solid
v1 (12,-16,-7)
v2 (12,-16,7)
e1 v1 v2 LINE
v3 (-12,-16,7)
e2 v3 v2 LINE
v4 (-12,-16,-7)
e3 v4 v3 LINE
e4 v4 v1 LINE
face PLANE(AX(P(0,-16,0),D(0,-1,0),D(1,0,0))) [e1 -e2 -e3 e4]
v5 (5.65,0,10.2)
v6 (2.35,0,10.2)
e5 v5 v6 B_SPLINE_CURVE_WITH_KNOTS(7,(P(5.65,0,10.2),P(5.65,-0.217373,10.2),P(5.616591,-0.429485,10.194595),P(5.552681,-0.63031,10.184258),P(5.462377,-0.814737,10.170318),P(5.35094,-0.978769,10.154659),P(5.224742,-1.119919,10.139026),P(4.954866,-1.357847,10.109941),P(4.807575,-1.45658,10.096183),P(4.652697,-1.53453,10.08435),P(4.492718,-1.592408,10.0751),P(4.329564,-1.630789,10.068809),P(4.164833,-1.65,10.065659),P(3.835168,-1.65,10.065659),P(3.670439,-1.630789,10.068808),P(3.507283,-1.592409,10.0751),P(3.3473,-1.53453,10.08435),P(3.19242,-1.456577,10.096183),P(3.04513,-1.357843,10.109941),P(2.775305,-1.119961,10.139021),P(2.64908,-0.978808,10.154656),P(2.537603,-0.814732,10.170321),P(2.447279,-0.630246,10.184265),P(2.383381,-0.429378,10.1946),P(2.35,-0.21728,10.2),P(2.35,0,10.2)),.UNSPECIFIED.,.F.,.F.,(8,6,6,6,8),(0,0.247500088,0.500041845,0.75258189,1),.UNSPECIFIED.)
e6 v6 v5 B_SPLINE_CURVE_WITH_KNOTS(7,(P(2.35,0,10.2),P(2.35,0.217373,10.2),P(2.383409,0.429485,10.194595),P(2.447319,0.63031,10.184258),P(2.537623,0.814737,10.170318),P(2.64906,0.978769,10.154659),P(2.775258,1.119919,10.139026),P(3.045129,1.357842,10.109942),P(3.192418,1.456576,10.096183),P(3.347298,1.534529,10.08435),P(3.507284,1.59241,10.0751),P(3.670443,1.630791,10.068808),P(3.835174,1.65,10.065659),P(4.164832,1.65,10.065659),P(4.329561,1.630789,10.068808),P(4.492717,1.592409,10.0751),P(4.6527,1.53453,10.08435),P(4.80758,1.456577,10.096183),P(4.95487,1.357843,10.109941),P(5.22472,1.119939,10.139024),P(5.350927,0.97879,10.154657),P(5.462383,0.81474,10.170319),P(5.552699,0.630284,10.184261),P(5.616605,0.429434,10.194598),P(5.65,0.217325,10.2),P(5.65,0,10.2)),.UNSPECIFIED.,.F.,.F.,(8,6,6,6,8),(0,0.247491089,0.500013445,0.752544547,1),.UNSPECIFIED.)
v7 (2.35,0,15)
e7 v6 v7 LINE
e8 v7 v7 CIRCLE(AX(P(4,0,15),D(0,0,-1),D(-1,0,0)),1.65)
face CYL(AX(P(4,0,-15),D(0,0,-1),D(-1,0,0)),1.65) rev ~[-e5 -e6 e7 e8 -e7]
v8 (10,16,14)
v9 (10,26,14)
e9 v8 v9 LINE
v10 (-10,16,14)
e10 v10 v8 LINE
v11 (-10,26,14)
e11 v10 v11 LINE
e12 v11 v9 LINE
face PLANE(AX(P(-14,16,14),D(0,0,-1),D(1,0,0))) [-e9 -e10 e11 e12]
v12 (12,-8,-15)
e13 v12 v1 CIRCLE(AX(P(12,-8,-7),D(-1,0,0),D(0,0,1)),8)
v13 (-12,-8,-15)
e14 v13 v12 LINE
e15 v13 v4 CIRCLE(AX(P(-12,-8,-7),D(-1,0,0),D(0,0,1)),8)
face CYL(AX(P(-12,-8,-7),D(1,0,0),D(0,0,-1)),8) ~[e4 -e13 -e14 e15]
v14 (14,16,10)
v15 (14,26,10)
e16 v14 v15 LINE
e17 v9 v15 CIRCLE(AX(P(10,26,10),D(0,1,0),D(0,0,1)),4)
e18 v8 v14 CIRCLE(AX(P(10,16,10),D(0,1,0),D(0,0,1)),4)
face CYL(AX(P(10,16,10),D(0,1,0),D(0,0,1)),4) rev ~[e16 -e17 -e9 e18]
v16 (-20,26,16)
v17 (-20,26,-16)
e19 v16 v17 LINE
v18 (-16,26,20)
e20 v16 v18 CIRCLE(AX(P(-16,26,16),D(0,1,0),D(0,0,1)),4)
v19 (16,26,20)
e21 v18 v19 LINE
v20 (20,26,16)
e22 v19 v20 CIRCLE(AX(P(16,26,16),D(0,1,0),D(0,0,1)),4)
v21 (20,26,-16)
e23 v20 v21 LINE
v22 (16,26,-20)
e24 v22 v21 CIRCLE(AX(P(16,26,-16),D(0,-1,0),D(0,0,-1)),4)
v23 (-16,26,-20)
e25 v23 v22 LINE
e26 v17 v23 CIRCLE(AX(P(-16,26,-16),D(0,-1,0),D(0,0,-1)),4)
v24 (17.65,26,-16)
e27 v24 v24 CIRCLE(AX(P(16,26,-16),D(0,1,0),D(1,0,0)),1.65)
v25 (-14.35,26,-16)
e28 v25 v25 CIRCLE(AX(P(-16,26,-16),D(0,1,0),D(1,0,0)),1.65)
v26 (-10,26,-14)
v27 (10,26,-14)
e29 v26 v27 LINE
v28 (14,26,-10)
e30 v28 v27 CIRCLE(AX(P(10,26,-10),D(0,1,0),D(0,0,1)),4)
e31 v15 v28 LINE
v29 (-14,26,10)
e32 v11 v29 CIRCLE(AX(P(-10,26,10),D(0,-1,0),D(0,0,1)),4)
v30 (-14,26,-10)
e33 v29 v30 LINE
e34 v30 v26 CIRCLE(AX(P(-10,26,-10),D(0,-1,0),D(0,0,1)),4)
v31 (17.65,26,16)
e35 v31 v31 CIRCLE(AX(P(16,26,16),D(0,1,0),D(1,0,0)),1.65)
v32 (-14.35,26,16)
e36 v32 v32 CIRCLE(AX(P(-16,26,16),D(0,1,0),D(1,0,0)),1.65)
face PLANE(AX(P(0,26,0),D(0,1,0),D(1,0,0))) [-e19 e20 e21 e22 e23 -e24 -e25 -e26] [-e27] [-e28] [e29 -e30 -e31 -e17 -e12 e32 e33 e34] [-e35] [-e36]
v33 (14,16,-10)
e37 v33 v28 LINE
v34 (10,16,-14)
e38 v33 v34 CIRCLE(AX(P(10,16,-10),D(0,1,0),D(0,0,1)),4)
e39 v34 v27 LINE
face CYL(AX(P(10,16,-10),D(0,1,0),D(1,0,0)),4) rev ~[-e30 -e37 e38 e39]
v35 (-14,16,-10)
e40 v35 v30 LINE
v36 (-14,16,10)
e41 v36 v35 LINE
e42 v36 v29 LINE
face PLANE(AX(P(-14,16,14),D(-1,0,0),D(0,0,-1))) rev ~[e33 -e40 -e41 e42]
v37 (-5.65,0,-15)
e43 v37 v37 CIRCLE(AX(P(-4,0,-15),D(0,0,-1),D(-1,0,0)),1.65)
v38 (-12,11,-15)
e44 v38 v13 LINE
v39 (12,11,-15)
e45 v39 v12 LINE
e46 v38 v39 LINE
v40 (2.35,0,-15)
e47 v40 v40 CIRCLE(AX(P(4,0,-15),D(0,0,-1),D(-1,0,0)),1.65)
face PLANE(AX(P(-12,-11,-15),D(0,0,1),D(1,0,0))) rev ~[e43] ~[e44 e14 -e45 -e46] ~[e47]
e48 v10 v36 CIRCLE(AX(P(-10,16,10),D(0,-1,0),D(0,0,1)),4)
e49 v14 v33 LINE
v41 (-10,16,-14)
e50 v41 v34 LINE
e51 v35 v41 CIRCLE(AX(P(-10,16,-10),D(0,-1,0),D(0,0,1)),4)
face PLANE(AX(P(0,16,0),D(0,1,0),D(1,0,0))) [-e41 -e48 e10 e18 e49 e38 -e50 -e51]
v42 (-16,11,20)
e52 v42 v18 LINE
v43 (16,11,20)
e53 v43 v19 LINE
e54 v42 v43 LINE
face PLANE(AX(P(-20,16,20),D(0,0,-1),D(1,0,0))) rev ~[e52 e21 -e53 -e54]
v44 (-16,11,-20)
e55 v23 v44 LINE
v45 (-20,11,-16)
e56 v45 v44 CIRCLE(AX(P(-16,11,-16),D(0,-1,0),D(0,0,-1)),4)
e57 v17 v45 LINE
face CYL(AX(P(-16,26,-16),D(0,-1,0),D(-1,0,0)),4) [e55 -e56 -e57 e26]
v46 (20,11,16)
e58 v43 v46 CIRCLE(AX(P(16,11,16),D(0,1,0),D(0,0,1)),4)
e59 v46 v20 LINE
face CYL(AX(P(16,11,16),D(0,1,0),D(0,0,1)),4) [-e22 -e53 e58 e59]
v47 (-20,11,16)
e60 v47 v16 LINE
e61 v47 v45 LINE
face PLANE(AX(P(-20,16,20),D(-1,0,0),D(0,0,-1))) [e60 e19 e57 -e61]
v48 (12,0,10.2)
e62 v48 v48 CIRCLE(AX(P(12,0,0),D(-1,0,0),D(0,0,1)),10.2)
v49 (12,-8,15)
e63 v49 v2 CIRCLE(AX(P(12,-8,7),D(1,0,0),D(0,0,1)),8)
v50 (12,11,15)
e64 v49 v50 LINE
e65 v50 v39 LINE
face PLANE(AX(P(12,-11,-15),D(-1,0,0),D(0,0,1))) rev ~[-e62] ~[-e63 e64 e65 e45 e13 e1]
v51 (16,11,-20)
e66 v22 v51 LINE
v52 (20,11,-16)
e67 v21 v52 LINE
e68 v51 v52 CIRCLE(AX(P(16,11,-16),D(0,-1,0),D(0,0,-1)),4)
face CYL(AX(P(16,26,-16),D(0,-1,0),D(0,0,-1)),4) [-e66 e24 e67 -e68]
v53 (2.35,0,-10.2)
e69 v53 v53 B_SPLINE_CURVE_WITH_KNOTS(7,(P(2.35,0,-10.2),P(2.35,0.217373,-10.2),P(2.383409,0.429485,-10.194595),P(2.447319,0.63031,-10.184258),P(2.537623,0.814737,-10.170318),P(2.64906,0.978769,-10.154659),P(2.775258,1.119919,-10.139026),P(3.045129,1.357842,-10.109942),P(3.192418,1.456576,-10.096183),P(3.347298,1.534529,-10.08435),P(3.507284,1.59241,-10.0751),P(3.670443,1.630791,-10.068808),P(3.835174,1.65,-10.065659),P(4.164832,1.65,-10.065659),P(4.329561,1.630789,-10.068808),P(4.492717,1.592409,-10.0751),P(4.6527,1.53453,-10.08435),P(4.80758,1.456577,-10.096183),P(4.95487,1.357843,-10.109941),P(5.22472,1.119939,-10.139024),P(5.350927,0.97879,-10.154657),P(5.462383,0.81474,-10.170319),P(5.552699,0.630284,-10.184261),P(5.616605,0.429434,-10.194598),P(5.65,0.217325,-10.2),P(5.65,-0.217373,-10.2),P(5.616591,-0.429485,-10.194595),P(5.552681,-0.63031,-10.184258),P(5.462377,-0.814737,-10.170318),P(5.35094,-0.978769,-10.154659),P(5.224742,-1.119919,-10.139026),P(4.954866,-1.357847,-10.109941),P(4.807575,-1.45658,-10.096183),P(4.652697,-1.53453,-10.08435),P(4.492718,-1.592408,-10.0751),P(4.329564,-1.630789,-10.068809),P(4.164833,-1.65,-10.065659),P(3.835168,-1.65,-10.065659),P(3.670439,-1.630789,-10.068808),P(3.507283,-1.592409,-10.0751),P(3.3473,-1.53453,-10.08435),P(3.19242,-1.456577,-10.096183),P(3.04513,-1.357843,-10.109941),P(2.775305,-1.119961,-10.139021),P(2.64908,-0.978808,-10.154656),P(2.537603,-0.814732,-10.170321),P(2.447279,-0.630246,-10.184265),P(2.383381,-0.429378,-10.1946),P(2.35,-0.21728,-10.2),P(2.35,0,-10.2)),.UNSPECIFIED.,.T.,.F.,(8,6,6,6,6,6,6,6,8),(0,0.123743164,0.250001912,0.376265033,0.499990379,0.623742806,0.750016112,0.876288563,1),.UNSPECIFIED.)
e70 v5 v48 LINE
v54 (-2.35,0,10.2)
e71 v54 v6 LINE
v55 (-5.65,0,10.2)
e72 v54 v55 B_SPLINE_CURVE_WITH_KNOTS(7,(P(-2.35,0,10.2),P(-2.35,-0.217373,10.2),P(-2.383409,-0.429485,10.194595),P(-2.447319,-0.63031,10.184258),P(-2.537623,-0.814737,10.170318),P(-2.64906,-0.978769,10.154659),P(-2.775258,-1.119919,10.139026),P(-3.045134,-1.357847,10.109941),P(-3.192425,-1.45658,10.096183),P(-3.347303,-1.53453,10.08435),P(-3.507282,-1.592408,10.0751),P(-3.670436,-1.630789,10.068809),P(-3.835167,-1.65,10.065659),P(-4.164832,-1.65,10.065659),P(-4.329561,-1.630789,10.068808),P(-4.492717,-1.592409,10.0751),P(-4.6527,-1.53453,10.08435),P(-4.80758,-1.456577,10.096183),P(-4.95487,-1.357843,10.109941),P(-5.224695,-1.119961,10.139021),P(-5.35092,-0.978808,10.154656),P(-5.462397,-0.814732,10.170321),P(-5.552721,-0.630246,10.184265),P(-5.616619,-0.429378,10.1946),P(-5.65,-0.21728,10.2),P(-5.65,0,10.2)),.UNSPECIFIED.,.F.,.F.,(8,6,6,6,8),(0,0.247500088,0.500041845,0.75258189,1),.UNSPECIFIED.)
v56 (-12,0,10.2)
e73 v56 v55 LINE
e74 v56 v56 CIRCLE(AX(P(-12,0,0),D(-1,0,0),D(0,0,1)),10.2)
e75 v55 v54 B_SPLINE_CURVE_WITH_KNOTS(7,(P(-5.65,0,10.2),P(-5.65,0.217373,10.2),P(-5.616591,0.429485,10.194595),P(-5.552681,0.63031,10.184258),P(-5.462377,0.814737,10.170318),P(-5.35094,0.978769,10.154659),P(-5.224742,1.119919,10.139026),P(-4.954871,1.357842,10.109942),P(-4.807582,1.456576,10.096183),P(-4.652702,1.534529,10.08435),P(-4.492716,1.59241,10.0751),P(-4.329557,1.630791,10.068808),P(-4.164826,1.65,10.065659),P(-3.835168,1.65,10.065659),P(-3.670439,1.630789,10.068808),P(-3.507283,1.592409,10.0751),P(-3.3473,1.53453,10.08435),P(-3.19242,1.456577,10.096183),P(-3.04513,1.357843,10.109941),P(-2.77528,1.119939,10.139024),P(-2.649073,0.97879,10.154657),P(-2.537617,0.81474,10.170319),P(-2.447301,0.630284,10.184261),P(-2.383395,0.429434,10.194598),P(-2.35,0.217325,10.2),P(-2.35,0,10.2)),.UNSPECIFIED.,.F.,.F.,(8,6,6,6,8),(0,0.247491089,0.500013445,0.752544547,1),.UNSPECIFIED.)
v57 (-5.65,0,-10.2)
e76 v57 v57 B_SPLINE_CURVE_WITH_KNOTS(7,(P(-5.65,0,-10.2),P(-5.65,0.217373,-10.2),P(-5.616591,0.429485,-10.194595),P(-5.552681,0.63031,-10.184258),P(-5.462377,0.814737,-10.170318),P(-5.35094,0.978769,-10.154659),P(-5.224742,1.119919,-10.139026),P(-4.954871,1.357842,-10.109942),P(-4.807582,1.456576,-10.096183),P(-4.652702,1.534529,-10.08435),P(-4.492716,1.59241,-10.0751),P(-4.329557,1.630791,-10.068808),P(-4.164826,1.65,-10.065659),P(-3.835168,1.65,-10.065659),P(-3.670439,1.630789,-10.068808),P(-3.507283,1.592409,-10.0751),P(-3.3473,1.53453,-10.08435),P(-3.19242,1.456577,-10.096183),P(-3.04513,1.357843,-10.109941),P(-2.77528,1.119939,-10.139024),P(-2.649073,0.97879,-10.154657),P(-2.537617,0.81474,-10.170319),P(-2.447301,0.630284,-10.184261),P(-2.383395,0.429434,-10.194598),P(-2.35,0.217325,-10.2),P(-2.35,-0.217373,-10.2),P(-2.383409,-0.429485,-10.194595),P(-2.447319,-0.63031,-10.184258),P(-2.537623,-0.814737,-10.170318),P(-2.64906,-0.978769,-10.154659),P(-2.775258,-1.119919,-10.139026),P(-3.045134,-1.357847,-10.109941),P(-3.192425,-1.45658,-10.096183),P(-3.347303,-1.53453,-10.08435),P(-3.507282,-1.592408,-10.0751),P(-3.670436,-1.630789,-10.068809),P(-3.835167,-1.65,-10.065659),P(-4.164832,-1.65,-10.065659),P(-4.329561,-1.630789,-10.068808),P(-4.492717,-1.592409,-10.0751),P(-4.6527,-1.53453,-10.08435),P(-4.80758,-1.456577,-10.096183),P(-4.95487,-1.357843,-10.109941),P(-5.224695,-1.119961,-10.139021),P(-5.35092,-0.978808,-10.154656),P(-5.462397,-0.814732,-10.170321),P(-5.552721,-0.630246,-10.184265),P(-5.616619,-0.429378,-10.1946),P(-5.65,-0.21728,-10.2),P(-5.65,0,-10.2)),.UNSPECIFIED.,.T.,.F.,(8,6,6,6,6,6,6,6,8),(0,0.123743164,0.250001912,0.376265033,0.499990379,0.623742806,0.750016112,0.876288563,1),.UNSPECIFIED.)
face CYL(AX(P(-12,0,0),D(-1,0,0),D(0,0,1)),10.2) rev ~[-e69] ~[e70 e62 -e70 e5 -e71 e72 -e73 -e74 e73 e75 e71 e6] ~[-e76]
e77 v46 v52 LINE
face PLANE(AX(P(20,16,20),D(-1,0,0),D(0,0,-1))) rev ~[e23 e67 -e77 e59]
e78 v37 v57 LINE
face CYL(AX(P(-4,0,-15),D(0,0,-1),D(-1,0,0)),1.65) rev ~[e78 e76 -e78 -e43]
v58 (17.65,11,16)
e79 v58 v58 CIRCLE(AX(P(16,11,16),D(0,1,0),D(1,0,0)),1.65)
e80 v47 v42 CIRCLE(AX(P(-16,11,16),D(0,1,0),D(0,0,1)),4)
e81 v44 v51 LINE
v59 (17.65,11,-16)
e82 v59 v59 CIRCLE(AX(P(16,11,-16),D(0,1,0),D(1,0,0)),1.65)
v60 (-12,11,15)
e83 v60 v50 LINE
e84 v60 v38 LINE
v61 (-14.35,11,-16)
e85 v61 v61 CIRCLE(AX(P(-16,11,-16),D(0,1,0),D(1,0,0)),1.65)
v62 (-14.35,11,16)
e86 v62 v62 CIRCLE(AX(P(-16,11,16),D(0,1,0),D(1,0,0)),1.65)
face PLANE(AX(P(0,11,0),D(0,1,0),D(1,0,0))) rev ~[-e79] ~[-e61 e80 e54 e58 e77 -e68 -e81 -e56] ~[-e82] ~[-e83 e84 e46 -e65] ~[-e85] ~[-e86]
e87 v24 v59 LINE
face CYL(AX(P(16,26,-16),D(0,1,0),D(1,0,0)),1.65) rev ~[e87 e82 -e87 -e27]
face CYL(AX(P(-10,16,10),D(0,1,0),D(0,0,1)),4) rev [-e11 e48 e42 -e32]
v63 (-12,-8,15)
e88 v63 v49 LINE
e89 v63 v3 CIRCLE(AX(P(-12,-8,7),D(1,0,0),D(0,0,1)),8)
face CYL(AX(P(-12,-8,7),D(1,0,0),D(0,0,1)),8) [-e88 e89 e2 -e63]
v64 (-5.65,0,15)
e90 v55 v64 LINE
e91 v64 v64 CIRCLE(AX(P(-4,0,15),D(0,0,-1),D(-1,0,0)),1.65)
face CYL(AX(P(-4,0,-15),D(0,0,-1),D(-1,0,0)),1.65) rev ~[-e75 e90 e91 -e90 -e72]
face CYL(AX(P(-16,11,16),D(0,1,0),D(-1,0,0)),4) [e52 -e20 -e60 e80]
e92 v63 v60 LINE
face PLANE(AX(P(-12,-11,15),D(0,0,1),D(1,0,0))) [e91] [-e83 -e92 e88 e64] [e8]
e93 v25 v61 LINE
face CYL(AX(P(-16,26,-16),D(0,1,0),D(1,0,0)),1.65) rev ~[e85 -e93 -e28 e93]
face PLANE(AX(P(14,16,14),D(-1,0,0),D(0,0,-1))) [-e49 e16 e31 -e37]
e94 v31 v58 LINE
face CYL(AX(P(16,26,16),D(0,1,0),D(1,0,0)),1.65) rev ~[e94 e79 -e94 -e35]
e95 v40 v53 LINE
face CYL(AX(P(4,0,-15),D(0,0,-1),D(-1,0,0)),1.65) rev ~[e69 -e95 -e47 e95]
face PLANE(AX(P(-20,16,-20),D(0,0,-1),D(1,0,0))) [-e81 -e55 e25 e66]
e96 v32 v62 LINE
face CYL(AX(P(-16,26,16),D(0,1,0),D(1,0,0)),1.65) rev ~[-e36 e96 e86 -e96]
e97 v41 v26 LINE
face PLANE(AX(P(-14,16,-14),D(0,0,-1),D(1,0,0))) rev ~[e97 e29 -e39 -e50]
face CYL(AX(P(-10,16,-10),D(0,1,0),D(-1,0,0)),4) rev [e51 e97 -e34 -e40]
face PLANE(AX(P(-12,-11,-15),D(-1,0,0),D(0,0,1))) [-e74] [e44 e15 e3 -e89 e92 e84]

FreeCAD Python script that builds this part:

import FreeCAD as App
import Part
import Sketcher

V = App.Vector
Q = App.Units.Quantity


def edges_at(feature, points):
    """Names of the edges that pass closest to the given points."""
    edges = feature.Shape.Edges
    near = lambda p: min(range(len(edges)), key=lambda i: edges[i].distToShape(Part.Vertex(*p))[0])
    return sorted({f"Edge{near(p) + 1}" for p in points})

doc = App.newDocument("Part")
body = doc.addObject("PartDesign::Body", "Body")

# Sketch on XZ plane
sketch1 = body.newObject("Sketcher::SketchObject", "Sketch")
sketch1.AttachmentSupport = (doc.getObject("XZ_Plane"), [""])
sketch1.MapMode = "FlatFace"
sketch1.addGeometry([
    Part.LineSegment(V(-12, -15, 0), V(-12, 15, 0)),
    Part.LineSegment(V(-12, 15, 0), V(12, 15, 0)),
    Part.LineSegment(V(12, 15, 0), V(12, -15, 0)),
    Part.LineSegment(V(12, -15, 0), V(-12, -15, 0)),
], False)
sketch1.addConstraint([
    Sketcher.Constraint("Coincident", 0, 2, 1, 1),
    Sketcher.Constraint("Coincident", 1, 2, 2, 1),
    Sketcher.Constraint("Coincident", 2, 2, 3, 1),
    Sketcher.Constraint("Coincident", 3, 2, 0, 1),
    Sketcher.Constraint("Vertical", 0),
    Sketcher.Constraint("Horizontal", 1),
    Sketcher.Constraint("Vertical", 2),
    Sketcher.Constraint("Horizontal", 3),
    Sketcher.Constraint("Symmetric", 0, 2, 2, 2, -1, 1),
    Sketcher.Constraint("DistanceX", 1, 1, 1, 2, Q("24 mm")),
    Sketcher.Constraint("DistanceY", 0, 1, 0, 2, Q("30 mm")),
])
pad1 = body.newObject("PartDesign::Pad", "Pad")
pad1.Profile = sketch1
pad1.Length = 22
pad1.Midplane = True

# Sketch on XY plane
sketch2 = body.newObject("Sketcher::SketchObject", "Sketch001")
sketch2.AttachmentSupport = (doc.getObject("XY_Plane"), [""])
sketch2.MapMode = "FlatFace"
sketch2.AttachmentOffset = App.Placement(V(0, 0, -15), App.Rotation())
sketch2.addGeometry([
    Part.Circle(V(-4, 0, 0), V(0, 0, 1), 1.6),
    Part.Circle(V(4, 0, 0), V(0, 0, 1), 1.6),
], False)
sketch2.addConstraint([
    Sketcher.Constraint("Equal", 0, 1),
    Sketcher.Constraint("Symmetric", 0, 3, 1, 3, -1, 1),
    Sketcher.Constraint("PointOnObject", 0, 3, -1),
    Sketcher.Constraint("Diameter", 0, Q("3.3 mm")),
    Sketcher.Constraint("DistanceX", 0, 3, -1, 1, Q("4 mm")),
])
pocket1 = body.newObject("PartDesign::Pocket", "Pocket")
pocket1.Profile = sketch2
pocket1.Length = 30
pocket1.Reversed = True

# Sketch on YZ plane
sketch3 = body.newObject("Sketcher::SketchObject", "Sketch002")
sketch3.AttachmentSupport = (doc.getObject("YZ_Plane"), [""])
sketch3.MapMode = "FlatFace"
sketch3.AttachmentOffset = App.Placement(V(0, 0, -12), App.Rotation())
sketch3.addGeometry(Part.Circle(V(0, 0, 0), V(0, 0, 1), 10), False)
sketch3.addConstraint([
    Sketcher.Constraint("Coincident", 0, 3, -1, 1),
    Sketcher.Constraint("Diameter", 0, Q("20.4 mm")),
])
pocket2 = body.newObject("PartDesign::Pocket", "Pocket001")
pocket2.Profile = sketch3
pocket2.Length = 24
pocket2.Reversed = True

# Sketch on XZ plane
sketch4 = body.newObject("Sketcher::SketchObject", "Sketch003")
sketch4.AttachmentSupport = (doc.getObject("XZ_Plane"), [""])
sketch4.MapMode = "FlatFace"
sketch4.AttachmentOffset = App.Placement(V(0, 0, -16), App.Rotation())
sketch4.addGeometry([
    Part.LineSegment(V(-20, -20, 0), V(-20, 20, 0)),
    Part.LineSegment(V(-20, 20, 0), V(20, 20, 0)),
    Part.LineSegment(V(20, 20, 0), V(20, -20, 0)),
    Part.LineSegment(V(20, -20, 0), V(-20, -20, 0)),
], False)
sketch4.addConstraint([
    Sketcher.Constraint("Coincident", 0, 2, 1, 1),
    Sketcher.Constraint("Coincident", 1, 2, 2, 1),
    Sketcher.Constraint("Coincident", 2, 2, 3, 1),
    Sketcher.Constraint("Coincident", 3, 2, 0, 1),
    Sketcher.Constraint("Vertical", 0),
    Sketcher.Constraint("Horizontal", 1),
    Sketcher.Constraint("Vertical", 2),
    Sketcher.Constraint("Horizontal", 3),
    Sketcher.Constraint("Symmetric", 0, 2, 2, 2, -1, 1),
    Sketcher.Constraint("Equal", 3, 0),
    Sketcher.Constraint("DistanceX", 1, 1, 1, 2, Q("40 mm")),
])
pad2 = body.newObject("PartDesign::Pad", "Pad001")
pad2.Profile = sketch4
pad2.Length = 5

# Sketch on XZ plane
sketch5 = body.newObject("Sketcher::SketchObject", "Sketch004")
sketch5.AttachmentSupport = (doc.getObject("XZ_Plane"), [""])
sketch5.MapMode = "FlatFace"
sketch5.AttachmentOffset = App.Placement(V(0, 0, -16), App.Rotation())
sketch5.addGeometry([
    Part.LineSegment(V(-20, -20, 0), V(-20, 20, 0)),  # 0
    Part.LineSegment(V(-20, 20, 0), V(20, 20, 0)),  # 1
    Part.LineSegment(V(20, 20, 0), V(20, -20, 0)),  # 2
    Part.LineSegment(V(20, -20, 0), V(-20, -20, 0)),  # 3
    Part.LineSegment(V(14, 14, 0), V(-14, 14, 0)),  # 4
    Part.LineSegment(V(-14, 14, 0), V(-14, -14, 0)),  # 5
    Part.LineSegment(V(-14, -14, 0), V(14, -14, 0)),  # 6
    Part.LineSegment(V(14, -14, 0), V(14, 14, 0)),  # 7
], False)
sketch5.addConstraint([
    Sketcher.Constraint("Coincident", 0, 2, 1, 1),
    Sketcher.Constraint("Coincident", 1, 2, 2, 1),
    Sketcher.Constraint("Coincident", 2, 2, 3, 1),
    Sketcher.Constraint("Coincident", 3, 2, 0, 1),
    Sketcher.Constraint("Coincident", 4, 2, 5, 1),
    Sketcher.Constraint("Coincident", 5, 2, 6, 1),
    Sketcher.Constraint("Coincident", 6, 2, 7, 1),
    Sketcher.Constraint("Coincident", 7, 2, 4, 1),
    Sketcher.Constraint("Vertical", 0),
    Sketcher.Constraint("Horizontal", 1),
    Sketcher.Constraint("Vertical", 2),
    Sketcher.Constraint("Horizontal", 3),
    Sketcher.Constraint("Horizontal", 4),
    Sketcher.Constraint("Vertical", 5),
    Sketcher.Constraint("Horizontal", 6),
    Sketcher.Constraint("Vertical", 7),
    Sketcher.Constraint("Symmetric", 0, 2, 2, 2, -1, 1),
    Sketcher.Constraint("Symmetric", 4, 2, 6, 2, -1, 1),
    Sketcher.Constraint("Equal", 3, 0),
    Sketcher.Constraint("Equal", 6, 5),
    Sketcher.Constraint("DistanceX", 1, 1, 1, 2, Q("40 mm")),
    Sketcher.Constraint("DistanceX", 4, 2, 4, 1, Q("28 mm")),
])
pad3 = body.newObject("PartDesign::Pad", "Pad002")
pad3.Profile = sketch5
pad3.Length = 10
pad3.Reversed = True

# Sketch on XZ plane
sketch6 = body.newObject("Sketcher::SketchObject", "Sketch005")
sketch6.AttachmentSupport = (doc.getObject("XZ_Plane"), [""])
sketch6.MapMode = "FlatFace"
sketch6.AttachmentOffset = App.Placement(V(0, 0, -26), App.Rotation())
sketch6.addGeometry([
    Part.Circle(V(-16, -16, 0), V(0, 0, 1), 1.6),
    Part.Circle(V(16, -16, 0), V(0, 0, 1), 1.6),
    Part.Circle(V(16, 16, 0), V(0, 0, 1), 1.6),
    Part.Circle(V(-16, 16, 0), V(0, 0, 1), 1.6),
], False)
sketch6.addConstraint([
    Sketcher.Constraint("Equal", 0, 1),
    Sketcher.Constraint("Equal", 1, 2),
    Sketcher.Constraint("Equal", 2, 3),
    Sketcher.Constraint("Symmetric", 0, 3, 2, 3, -1, 1),
    Sketcher.Constraint("Symmetric", 1, 3, 3, 3, -1, 1),
    Sketcher.Constraint("Symmetric", 0, 3, 1, 3, -2),
    Sketcher.Constraint("Diameter", 0, Q("3.3 mm")),
    Sketcher.Constraint("DistanceX", 0, 3, -1, 1, Q("16 mm")),
    Sketcher.Constraint("DistanceY", 0, 3, -1, 1, Q("16 mm")),
])
pocket3 = body.newObject("PartDesign::Pocket", "Pocket002")
pocket3.Profile = sketch6
pocket3.Length = 15
pocket3.Reversed = True
doc.recompute()

fillet = body.newObject("PartDesign::Fillet", "Fillet")
fillet.Base = (pocket3, edges_at(pocket3, [
    (20, 18.5, 20),
    (20, 18.5, -20),
    (-20, 18.5, -20),
    (-20, 18.5, 20),
    (-14, 21, 14),
    (-14, 21, -14),
    (14, 21, -14),
    (14, 21, 14),
]))
fillet.Radius = 4

# Sketch on XZ plane
sketch7 = body.newObject("Sketcher::SketchObject", "Sketch006")
sketch7.AttachmentSupport = (doc.getObject("XZ_Plane"), [""])
sketch7.MapMode = "FlatFace"
sketch7.AttachmentOffset = App.Placement(V(0, 0, 11), App.Rotation())
sketch7.addGeometry([
    Part.LineSegment(V(-12, 15, 0), V(-12, -15, 0)),
    Part.LineSegment(V(-12, -15, 0), V(12, -15, 0)),
    Part.LineSegment(V(12, -15, 0), V(12, 15, 0)),
    Part.LineSegment(V(12, 15, 0), V(-12, 15, 0)),
], False)
sketch7.addConstraint([
    Sketcher.Constraint("Coincident", 0, 2, 1, 1),
    Sketcher.Constraint("Coincident", 1, 2, 2, 1),
    Sketcher.Constraint("Coincident", 2, 2, 3, 1),
    Sketcher.Constraint("Coincident", 3, 2, 0, 1),
    Sketcher.Constraint("Vertical", 0),
    Sketcher.Constraint("Horizontal", 1),
    Sketcher.Constraint("Vertical", 2),
    Sketcher.Constraint("Horizontal", 3),
    Sketcher.Constraint("Symmetric", 0, 2, 2, 2, -1, 1),
    Sketcher.Constraint("DistanceX", 1, 1, 1, 2, Q("24 mm")),
    Sketcher.Constraint("DistanceY", 0, 2, 0, 1, Q("30 mm")),
])
pad4 = body.newObject("PartDesign::Pad", "Pad003")
pad4.Profile = sketch7
pad4.Length = 5
doc.recompute()

fillet2 = body.newObject("PartDesign::Fillet", "Fillet001")
fillet2.Base = (pad4, edges_at(pad4, [(0, -16, 15), (0, -16, -15)]))
fillet2.Radius = 8

doc.recompute()
